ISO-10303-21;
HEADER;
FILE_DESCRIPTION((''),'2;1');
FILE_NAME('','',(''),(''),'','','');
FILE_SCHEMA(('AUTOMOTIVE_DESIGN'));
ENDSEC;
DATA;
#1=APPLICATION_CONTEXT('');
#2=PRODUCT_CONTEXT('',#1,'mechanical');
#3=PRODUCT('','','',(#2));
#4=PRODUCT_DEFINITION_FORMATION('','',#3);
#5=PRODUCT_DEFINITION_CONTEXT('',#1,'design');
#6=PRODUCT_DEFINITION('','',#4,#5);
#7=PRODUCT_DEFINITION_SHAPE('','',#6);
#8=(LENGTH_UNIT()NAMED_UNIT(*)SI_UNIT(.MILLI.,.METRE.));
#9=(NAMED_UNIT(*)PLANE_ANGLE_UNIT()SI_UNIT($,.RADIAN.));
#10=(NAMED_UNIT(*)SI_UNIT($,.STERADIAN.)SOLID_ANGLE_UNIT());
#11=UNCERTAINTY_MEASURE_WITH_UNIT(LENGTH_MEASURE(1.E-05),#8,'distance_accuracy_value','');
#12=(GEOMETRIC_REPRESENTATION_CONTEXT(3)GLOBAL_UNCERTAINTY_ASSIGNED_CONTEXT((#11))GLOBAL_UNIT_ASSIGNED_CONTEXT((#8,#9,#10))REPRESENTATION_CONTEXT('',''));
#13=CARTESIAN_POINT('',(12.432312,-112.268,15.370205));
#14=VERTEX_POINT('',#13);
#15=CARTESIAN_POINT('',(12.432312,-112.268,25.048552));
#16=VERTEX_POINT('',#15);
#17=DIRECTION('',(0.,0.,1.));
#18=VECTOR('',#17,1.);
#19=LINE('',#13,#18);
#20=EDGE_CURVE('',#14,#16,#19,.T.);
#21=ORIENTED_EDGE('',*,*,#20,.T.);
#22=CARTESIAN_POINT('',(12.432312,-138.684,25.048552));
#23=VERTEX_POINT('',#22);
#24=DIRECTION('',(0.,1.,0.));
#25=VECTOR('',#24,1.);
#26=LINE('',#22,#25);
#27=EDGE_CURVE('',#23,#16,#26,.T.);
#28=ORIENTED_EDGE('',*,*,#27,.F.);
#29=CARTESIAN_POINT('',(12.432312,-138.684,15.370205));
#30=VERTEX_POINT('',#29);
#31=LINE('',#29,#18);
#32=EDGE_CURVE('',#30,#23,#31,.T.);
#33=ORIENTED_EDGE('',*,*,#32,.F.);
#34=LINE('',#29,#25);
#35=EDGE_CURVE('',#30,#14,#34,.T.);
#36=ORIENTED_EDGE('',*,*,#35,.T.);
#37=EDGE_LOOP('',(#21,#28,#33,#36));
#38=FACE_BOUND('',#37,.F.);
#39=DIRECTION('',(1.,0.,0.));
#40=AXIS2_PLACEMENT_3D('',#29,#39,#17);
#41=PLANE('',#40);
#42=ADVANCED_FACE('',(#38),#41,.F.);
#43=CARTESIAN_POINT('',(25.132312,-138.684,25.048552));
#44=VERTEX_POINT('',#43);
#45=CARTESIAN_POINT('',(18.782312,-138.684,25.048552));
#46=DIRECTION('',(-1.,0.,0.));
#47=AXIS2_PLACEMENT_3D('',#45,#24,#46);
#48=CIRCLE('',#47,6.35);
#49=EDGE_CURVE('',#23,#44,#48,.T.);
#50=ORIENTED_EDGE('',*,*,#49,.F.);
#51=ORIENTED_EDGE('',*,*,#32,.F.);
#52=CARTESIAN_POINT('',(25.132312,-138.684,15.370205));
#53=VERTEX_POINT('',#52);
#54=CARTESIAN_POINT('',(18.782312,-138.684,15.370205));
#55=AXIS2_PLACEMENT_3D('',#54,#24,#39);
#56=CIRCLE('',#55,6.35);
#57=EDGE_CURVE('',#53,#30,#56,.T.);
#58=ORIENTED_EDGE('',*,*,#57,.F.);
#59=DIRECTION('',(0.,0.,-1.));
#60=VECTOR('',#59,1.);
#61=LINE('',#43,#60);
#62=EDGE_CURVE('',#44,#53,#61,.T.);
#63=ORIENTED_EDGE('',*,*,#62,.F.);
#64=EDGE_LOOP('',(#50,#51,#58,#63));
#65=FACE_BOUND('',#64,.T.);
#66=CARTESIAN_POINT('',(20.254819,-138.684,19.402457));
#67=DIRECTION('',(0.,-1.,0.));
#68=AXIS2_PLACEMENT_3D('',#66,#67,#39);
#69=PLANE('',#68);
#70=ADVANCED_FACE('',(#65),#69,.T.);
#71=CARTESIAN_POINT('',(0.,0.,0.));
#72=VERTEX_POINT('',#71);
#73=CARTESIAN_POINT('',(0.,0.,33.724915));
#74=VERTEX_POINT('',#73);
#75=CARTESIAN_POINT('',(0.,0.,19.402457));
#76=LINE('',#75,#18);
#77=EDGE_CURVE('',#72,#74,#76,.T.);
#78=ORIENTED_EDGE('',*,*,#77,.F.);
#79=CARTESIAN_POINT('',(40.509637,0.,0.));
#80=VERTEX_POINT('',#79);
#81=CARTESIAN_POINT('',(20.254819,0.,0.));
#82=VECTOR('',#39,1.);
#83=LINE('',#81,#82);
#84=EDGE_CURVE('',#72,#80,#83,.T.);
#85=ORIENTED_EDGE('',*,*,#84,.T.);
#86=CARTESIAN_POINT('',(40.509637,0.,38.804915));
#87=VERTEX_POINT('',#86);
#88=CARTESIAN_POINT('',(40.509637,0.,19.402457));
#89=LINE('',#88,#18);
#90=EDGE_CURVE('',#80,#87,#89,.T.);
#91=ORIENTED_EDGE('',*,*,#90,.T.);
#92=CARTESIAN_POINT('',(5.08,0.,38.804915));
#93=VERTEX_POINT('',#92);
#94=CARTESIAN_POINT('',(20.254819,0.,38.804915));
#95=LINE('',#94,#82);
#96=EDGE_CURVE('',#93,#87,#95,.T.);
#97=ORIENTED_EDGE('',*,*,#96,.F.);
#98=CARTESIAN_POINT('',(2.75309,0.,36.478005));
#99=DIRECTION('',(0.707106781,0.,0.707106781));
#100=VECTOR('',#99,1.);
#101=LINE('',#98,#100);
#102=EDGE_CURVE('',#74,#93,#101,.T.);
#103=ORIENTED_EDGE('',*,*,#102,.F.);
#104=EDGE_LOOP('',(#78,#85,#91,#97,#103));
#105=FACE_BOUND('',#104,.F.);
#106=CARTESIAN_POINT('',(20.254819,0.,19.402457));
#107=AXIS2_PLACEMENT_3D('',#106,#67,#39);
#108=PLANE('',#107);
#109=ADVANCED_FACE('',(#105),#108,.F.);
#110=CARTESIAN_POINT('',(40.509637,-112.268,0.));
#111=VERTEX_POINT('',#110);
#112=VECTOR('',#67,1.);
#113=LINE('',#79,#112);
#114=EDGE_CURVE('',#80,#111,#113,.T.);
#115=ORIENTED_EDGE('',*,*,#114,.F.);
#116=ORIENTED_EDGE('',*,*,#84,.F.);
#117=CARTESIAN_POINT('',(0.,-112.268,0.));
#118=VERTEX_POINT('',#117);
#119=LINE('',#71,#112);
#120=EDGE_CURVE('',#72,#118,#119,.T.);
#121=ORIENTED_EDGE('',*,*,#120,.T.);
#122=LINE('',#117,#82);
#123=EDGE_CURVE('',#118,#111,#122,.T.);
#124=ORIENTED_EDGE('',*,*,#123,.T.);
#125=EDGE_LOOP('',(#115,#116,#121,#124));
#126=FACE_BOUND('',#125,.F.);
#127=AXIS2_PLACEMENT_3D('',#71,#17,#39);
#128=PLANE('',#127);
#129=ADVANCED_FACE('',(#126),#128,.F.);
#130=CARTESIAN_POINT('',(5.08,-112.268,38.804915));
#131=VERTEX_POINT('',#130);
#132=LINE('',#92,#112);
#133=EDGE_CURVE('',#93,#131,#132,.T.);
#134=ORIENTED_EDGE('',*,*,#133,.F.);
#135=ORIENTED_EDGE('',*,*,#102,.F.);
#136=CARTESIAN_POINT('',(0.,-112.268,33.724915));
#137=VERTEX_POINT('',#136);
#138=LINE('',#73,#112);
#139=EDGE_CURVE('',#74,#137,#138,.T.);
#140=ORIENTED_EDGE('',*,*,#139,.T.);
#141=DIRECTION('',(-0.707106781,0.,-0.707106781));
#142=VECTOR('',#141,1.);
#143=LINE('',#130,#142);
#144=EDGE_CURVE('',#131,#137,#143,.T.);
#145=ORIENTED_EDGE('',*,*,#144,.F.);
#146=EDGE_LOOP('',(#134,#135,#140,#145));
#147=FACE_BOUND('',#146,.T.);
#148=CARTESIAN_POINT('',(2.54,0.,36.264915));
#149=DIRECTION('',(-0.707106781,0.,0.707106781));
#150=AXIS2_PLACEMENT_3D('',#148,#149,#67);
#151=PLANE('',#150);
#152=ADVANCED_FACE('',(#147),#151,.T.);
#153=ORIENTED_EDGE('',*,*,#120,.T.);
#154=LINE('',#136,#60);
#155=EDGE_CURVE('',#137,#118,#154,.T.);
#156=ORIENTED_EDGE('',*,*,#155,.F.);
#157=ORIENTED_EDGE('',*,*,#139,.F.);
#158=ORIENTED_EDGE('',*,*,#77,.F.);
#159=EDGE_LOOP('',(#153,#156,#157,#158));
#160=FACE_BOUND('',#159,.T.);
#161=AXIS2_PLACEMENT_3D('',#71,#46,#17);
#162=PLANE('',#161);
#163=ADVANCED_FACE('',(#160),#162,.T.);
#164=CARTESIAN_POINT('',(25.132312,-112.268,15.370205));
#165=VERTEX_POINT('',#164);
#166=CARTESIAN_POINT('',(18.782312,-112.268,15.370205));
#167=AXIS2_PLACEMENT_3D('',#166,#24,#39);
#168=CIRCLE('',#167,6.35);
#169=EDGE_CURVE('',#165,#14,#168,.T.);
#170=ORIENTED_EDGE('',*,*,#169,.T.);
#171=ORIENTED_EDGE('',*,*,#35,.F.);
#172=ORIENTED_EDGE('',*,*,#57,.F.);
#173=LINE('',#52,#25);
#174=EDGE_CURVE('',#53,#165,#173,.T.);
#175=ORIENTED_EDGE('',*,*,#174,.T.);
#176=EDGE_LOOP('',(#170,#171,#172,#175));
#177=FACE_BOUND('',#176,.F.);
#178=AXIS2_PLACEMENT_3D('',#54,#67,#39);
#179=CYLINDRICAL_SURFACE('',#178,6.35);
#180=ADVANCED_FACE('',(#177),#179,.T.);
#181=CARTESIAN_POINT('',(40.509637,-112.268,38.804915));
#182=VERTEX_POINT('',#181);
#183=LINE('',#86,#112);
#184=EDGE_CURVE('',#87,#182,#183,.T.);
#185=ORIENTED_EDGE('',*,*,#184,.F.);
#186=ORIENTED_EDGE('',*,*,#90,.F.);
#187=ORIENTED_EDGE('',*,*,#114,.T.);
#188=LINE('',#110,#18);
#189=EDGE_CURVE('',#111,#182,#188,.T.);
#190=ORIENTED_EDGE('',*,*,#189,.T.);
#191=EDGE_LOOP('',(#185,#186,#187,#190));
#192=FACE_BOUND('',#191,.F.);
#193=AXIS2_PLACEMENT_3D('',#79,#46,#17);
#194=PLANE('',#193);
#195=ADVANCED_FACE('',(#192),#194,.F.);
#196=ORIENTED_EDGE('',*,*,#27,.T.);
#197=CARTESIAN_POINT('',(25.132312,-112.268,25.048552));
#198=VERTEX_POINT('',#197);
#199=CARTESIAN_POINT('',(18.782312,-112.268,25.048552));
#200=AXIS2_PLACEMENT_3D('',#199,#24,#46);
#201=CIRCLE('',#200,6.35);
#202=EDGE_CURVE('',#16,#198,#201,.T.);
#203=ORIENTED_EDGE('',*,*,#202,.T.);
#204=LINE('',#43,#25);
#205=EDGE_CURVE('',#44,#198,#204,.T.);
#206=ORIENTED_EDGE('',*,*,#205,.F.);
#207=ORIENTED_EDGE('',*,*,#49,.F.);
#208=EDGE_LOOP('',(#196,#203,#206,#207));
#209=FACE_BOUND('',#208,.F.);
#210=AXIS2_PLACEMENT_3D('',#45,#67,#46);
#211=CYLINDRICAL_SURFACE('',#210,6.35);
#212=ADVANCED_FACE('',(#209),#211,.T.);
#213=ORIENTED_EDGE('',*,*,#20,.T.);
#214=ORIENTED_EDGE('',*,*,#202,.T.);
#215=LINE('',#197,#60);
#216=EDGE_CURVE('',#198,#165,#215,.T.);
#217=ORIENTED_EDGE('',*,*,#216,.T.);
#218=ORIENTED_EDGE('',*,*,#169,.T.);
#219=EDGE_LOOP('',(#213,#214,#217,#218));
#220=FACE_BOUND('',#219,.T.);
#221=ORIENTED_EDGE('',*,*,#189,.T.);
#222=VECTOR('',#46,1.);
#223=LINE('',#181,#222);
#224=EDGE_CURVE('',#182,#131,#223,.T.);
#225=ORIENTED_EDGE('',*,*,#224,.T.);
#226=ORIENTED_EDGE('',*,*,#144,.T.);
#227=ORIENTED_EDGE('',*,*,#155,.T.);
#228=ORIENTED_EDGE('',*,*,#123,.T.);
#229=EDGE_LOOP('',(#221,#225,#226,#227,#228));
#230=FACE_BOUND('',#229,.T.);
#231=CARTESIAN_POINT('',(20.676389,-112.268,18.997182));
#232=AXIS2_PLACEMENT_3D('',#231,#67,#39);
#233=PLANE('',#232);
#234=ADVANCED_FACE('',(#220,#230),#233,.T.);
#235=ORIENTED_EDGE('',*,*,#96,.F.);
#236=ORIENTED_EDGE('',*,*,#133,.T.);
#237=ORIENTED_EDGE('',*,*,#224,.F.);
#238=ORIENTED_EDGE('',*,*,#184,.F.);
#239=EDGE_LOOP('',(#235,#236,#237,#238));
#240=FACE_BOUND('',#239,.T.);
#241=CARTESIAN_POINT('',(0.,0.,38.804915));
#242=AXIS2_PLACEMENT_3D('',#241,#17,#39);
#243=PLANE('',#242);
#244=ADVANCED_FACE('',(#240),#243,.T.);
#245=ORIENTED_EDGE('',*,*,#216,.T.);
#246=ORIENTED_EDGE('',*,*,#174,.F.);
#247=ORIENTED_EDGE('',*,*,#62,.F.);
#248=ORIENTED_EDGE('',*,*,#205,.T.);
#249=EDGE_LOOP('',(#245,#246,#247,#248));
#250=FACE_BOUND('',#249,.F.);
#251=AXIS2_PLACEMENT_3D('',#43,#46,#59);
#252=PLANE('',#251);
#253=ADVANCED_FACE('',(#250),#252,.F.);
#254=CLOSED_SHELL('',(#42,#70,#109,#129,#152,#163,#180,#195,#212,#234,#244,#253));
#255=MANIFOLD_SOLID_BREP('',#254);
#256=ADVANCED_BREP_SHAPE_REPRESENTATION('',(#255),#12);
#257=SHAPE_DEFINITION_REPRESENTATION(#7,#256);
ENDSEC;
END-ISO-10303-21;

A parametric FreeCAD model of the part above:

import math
import FreeCAD as App
import Part
import Sketcher

V = App.Vector
Q = App.Units.Quantity


def edges_at(feature, points):
    """Names of the edges that pass closest to the given points."""
    edges = feature.Shape.Edges
    near = lambda p: min(range(len(edges)), key=lambda i: edges[i].distToShape(Part.Vertex(*p))[0])
    return sorted({f"Edge{near(p) + 1}" for p in points})

doc = App.newDocument("Part")
body = doc.addObject("PartDesign::Body", "Body")

sketch1 = doc.addObject("Sketcher::SketchObject", "Sketch")
body.addObject(sketch1)
sketch1.AttachmentSupport = (doc.XZ_Plane, [""])
sketch1.MapMode = "FlatFace"
sketch1.addGeometry([
    Part.LineSegment(V(0, 39, 0), V(0, 0, 0)),
    Part.LineSegment(V(0, 0, 0), V(41, 0, 0)),
    Part.LineSegment(V(41, 0, 0), V(41, 39, 0)),
    Part.LineSegment(V(41, 39, 0), V(0, 39, 0)),
], False)
sketch1.addConstraint([
    Sketcher.Constraint("Coincident", 0, 2, 1, 1),
    Sketcher.Constraint("Coincident", 1, 2, 2, 1),
    Sketcher.Constraint("Coincident", 2, 2, 3, 1),
    Sketcher.Constraint("Coincident", 3, 2, 0, 1),
    Sketcher.Constraint("Vertical", 0),
    Sketcher.Constraint("Horizontal", 1),
    Sketcher.Constraint("Vertical", 2),
    Sketcher.Constraint("Horizontal", 3),
    Sketcher.Constraint("Coincident", 0, 2, -1, 1),
    Sketcher.Constraint("DistanceX", 1, 1, 1, 2, 40.509637),
    Sketcher.Constraint("DistanceY", 0, 2, 0, 1, 38.804915),
])
pad1 = doc.addObject("PartDesign::Pad", "Pad")
body.addObject(pad1)
pad1.Profile = sketch1
pad1.Length = Q("5.46 in")
doc.recompute()

chamfer = doc.addObject("PartDesign::Chamfer", "Chamfer")
body.addObject(chamfer)
chamfer.Base = (pad1, edges_at(pad1, [(0, -69.342, 38.805)]))
chamfer.Size = Q("0.2 in")

sketch2 = doc.addObject("Sketcher::SketchObject", "Sketch001")
body.addObject(sketch2)
sketch2.AttachmentSupport = (doc.XZ_Plane, [""])
sketch2.MapMode = "FlatFace"
sketch2.AttachmentOffset = App.Placement(V(0, 0, 5.46 * 25.4), App.Rotation())
sketch2.addGeometry([
    Part.LineSegment(V(41, 39, 0), V(5, 39, 0)),
    Part.LineSegment(V(5, 39, 0), V(0, 34, 0)),
    Part.LineSegment(V(0, 34, 0), V(0, 0, 0)),
    Part.LineSegment(V(0, 0, 0), V(41, 0, 0)),
    Part.LineSegment(V(41, 0, 0), V(41, 39, 0)),
    Part.ArcOfCircle(Part.Circle(V(19, 15, 0), V(0, 0, 1), 6), math.radians(180), math.radians(360)),
    Part.LineSegment(V(12, 15, 0), V(12, 25, 0)),
    Part.ArcOfCircle(Part.Circle(V(19, 25, 0), V(0, 0, 1), 6), math.radians(0), math.radians(180)),
    Part.LineSegment(V(25, 25, 0), V(25, 15, 0)),
], False)
sketch2.addConstraint([
    Sketcher.Constraint("Coincident", 0, 2, 1, 1),
    Sketcher.Constraint("Coincident", 1, 2, 2, 1),
    Sketcher.Constraint("Coincident", 2, 2, 3, 1),
    Sketcher.Constraint("Coincident", 3, 2, 4, 1),
    Sketcher.Constraint("Coincident", 4, 2, 0, 1),
    Sketcher.Constraint("Tangent", 5, 1, 6, 1),
    Sketcher.Constraint("Tangent", 6, 2, 7, 2),
    Sketcher.Constraint("Tangent", 7, 1, 8, 1),
    Sketcher.Constraint("Tangent", 8, 2, 5, 2),
    Sketcher.Constraint("Horizontal", 0),
    Sketcher.Constraint("Vertical", 2),
    Sketcher.Constraint("Horizontal", 3),
    Sketcher.Constraint("Vertical", 4),
    Sketcher.Constraint("Vertical", 6),
    Sketcher.Constraint("Vertical", 8),
    Sketcher.Constraint("Coincident", 2, 2, -1, 1),
    Sketcher.Constraint("Radius", 5, Q("0.25 in")),
    Sketcher.Constraint("Angle", 1, Q("-135 deg")),
    Sketcher.Constraint("DistanceX", -1, 1, 0, 2, Q("0.2 in")),
    Sketcher.Constraint("DistanceX", 0, 2, 0, 1, 35.429637),
    Sketcher.Constraint("DistanceY", 2, 2, 2, 1, 33.724915),
    Sketcher.Constraint("DistanceY", 6, 1, 6, 2, 9.678347),
    Sketcher.Constraint("DistanceY", 5, 3, 0, 2, 23.43471),
    Sketcher.Constraint("DistanceX", -1, 1, 5, 3, 18.782312),
])
pocket1 = doc.addObject("PartDesign::Pocket", "Pocket")
body.addObject(pocket1)
pocket1.Profile = sketch2
pocket1.Length = Q("1.04 in")

doc.recompute()
